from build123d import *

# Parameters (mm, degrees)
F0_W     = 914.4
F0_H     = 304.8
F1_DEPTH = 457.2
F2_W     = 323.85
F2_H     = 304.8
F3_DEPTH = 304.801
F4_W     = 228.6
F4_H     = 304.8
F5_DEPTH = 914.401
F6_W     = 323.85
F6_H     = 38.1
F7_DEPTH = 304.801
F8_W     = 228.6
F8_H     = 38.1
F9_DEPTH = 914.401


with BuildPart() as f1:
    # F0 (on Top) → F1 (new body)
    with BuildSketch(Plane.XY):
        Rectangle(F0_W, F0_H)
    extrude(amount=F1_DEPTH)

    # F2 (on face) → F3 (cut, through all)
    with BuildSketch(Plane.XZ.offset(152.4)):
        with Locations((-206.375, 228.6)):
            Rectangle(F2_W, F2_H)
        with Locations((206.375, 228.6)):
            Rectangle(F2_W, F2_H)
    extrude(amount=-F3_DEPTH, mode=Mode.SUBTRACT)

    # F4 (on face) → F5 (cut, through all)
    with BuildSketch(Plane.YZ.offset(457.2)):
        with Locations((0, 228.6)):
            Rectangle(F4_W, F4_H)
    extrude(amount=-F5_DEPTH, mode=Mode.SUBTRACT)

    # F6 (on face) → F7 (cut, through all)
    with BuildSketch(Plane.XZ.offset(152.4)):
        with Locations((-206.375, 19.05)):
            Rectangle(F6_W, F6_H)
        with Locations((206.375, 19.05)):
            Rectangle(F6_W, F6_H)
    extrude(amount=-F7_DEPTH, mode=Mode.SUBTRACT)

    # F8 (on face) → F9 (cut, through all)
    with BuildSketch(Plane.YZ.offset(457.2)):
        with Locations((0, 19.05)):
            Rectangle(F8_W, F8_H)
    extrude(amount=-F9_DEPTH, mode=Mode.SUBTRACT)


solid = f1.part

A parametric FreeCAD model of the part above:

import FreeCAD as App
import Part
import Sketcher
Q = App.Units.Quantity

doc = App.newDocument("Part")
body = doc.addObject("PartDesign::Body", "Body")

sketch1 = doc.addObject("Sketcher::SketchObject", "Sketch")
body.addObject(sketch1)
sketch1.AttachmentSupport = (doc.XY_Plane, [""])
sketch1.MapMode = "FlatFace"
sketch1.addGeometry([
    Part.LineSegment(App.Vector(-457, 152, 0), App.Vector(-457, -152, 0)),
    Part.LineSegment(App.Vector(-457, -152, 0), App.Vector(457, -152, 0)),
    Part.LineSegment(App.Vector(457, -152, 0), App.Vector(457, 152, 0)),
    Part.LineSegment(App.Vector(457, 152, 0), App.Vector(-457, 152, 0)),
], False)
sketch1.addConstraint([
    Sketcher.Constraint("Coincident", 0, 2, 1, 1),
    Sketcher.Constraint("Coincident", 1, 2, 2, 1),
    Sketcher.Constraint("Coincident", 2, 2, 3, 1),
    Sketcher.Constraint("Coincident", 3, 2, 0, 1),
    Sketcher.Constraint("Vertical", 0),
    Sketcher.Constraint("Horizontal", 1),
    Sketcher.Constraint("Vertical", 2),
    Sketcher.Constraint("Horizontal", 3),
    Sketcher.Constraint("Symmetric", 0, 2, 2, 2, -1, 1),
    Sketcher.Constraint("DistanceX", 1, 1, 1, 2, Q("36 in")),
    Sketcher.Constraint("DistanceY", 0, 2, 0, 1, Q("12 in")),
])
pad1 = doc.addObject("PartDesign::Pad", "Pad")
body.addObject(pad1)
pad1.Profile = sketch1
pad1.Length = Q("18 in")

sketch2 = doc.addObject("Sketcher::SketchObject", "Sketch001")
body.addObject(sketch2)
sketch2.AttachmentSupport = (doc.XZ_Plane, [""])
sketch2.MapMode = "FlatFace"
sketch2.AttachmentOffset = App.Placement(App.Vector(0, 0, 6 * 25.4), App.Rotation())
sketch2.addGeometry([
    Part.LineSegment(App.Vector(-368, 381, 0), App.Vector(-368, 76, 0)),
    Part.LineSegment(App.Vector(-368, 76, 0), App.Vector(-44, 76, 0)),
    Part.LineSegment(App.Vector(-44, 76, 0), App.Vector(-44, 381, 0)),
    Part.LineSegment(App.Vector(-44, 381, 0), App.Vector(-368, 381, 0)),
    Part.LineSegment(App.Vector(44, 381, 0), App.Vector(44, 76, 0)),
    Part.LineSegment(App.Vector(44, 76, 0), App.Vector(368, 76, 0)),
    Part.LineSegment(App.Vector(368, 76, 0), App.Vector(368, 381, 0)),
    Part.LineSegment(App.Vector(368, 381, 0), App.Vector(44, 381, 0)),
], False)
sketch2.addConstraint([
    Sketcher.Constraint("Coincident", 0, 2, 1, 1),
    Sketcher.Constraint("Coincident", 1, 2, 2, 1),
    Sketcher.Constraint("Coincident", 2, 2, 3, 1),
    Sketcher.Constraint("Coincident", 3, 2, 0, 1),
    Sketcher.Constraint("Coincident", 4, 2, 5, 1),
    Sketcher.Constraint("Coincident", 5, 2, 6, 1),
    Sketcher.Constraint("Coincident", 6, 2, 7, 1),
    Sketcher.Constraint("Coincident", 7, 2, 4, 1),
    Sketcher.Constraint("Vertical", 0),
    Sketcher.Constraint("Horizontal", 1),
    Sketcher.Constraint("Vertical", 2),
    Sketcher.Constraint("Horizontal", 3),
    Sketcher.Constraint("Vertical", 4),
    Sketcher.Constraint("Horizontal", 5),
    Sketcher.Constraint("Vertical", 6),
    Sketcher.Constraint("Horizontal", 7),
    Sketcher.Constraint("Symmetric", 1, 2, 4, 2, -2),
    Sketcher.Constraint("Symmetric", 3, 2, 6, 2, -2),
    Sketcher.Constraint("DistanceY", 0, 2, 0, 1, Q("12 in")),
    Sketcher.Constraint("DistanceY", -1, 1, 0, 2, Q("3 in")),
    Sketcher.Constraint("DistanceX", 0, 2, 5, 2, Q("29 in")),
    Sketcher.Constraint("DistanceX", 1, 1, 1, 2, Q("12.75 in")),
])
pocket1 = doc.addObject("PartDesign::Pocket", "Pocket")
body.addObject(pocket1)
pocket1.Profile = sketch2
pocket1.Type = "ThroughAll"

sketch3 = doc.addObject("Sketcher::SketchObject", "Sketch002")
body.addObject(sketch3)
sketch3.AttachmentSupport = (doc.YZ_Plane, [""])
sketch3.MapMode = "FlatFace"
sketch3.AttachmentOffset = App.Placement(App.Vector(0, 0, 18 * 25.4), App.Rotation())
sketch3.addGeometry([
    Part.LineSegment(App.Vector(-114, 381, 0), App.Vector(-114, 76, 0)),
    Part.LineSegment(App.Vector(-114, 76, 0), App.Vector(114, 76, 0)),
    Part.LineSegment(App.Vector(114, 76, 0), App.Vector(114, 381, 0)),
    Part.LineSegment(App.Vector(114, 381, 0), App.Vector(-114, 381, 0)),
], False)
sketch3.addConstraint([
    Sketcher.Constraint("Coincident", 0, 2, 1, 1),
    Sketcher.Constraint("Coincident", 1, 2, 2, 1),
    Sketcher.Constraint("Coincident", 2, 2, 3, 1),
    Sketcher.Constraint("Coincident", 3, 2, 0, 1),
    Sketcher.Constraint("Vertical", 0),
    Sketcher.Constraint("Horizontal", 1),
    Sketcher.Constraint("Vertical", 2),
    Sketcher.Constraint("Horizontal", 3),
    Sketcher.Constraint("DistanceX", 1, 1, 1, 2, Q("9 in")),
    Sketcher.Constraint("DistanceY", 0, 2, 0, 1, Q("12 in")),
    Sketcher.Constraint("DistanceY", -1, 1, 0, 2, Q("3 in")),
    Sketcher.Constraint("DistanceX", 0, 2, -1, 1, Q("4.5 in")),
])
pocket2 = doc.addObject("PartDesign::Pocket", "Pocket001")
body.addObject(pocket2)
pocket2.Profile = sketch3
pocket2.Type = "ThroughAll"

sketch4 = doc.addObject("Sketcher::SketchObject", "Sketch003")
body.addObject(sketch4)
sketch4.AttachmentSupport = (doc.XZ_Plane, [""])
sketch4.MapMode = "FlatFace"
sketch4.AttachmentOffset = App.Placement(App.Vector(0, 0, 6 * 25.4), App.Rotation())
sketch4.addGeometry([
    Part.LineSegment(App.Vector(-368, 38, 0), App.Vector(-368, 0, 0)),
    Part.LineSegment(App.Vector(-368, 0, 0), App.Vector(-44, 0, 0)),
    Part.LineSegment(App.Vector(-44, 0, 0), App.Vector(-44, 38, 0)),
    Part.LineSegment(App.Vector(-44, 38, 0), App.Vector(-368, 38, 0)),
    Part.LineSegment(App.Vector(44, 38, 0), App.Vector(44, 0, 0)),
    Part.LineSegment(App.Vector(44, 0, 0), App.Vector(368, 0, 0)),
    Part.LineSegment(App.Vector(368, 0, 0), App.Vector(368, 38, 0)),
    Part.LineSegment(App.Vector(368, 38, 0), App.Vector(44, 38, 0)),
], False)
sketch4.addConstraint([
    Sketcher.Constraint("Coincident", 0, 2, 1, 1),
    Sketcher.Constraint("Coincident", 1, 2, 2, 1),
    Sketcher.Constraint("Coincident", 2, 2, 3, 1),
    Sketcher.Constraint("Coincident", 3, 2, 0, 1),
    Sketcher.Constraint("Coincident", 4, 2, 5, 1),
    Sketcher.Constraint("Coincident", 5, 2, 6, 1),
    Sketcher.Constraint("Coincident", 6, 2, 7, 1),
    Sketcher.Constraint("Coincident", 7, 2, 4, 1),
    Sketcher.Constraint("Vertical", 0),
    Sketcher.Constraint("Horizontal", 1),
    Sketcher.Constraint("Vertical", 2),
    Sketcher.Constraint("Horizontal", 3),
    Sketcher.Constraint("Vertical", 4),
    Sketcher.Constraint("Horizontal", 5),
    Sketcher.Constraint("Vertical", 6),
    Sketcher.Constraint("Horizontal", 7),
    Sketcher.Constraint("Symmetric", 1, 2, 4, 2, -1, 1),
    Sketcher.Constraint("Symmetric", 0, 2, 5, 2, -2),
    Sketcher.Constraint("Horizontal", 3, 2, 6, 2),
    Sketcher.Constraint("DistanceY", 0, 2, 0, 1, Q("1.5 in")),
    Sketcher.Constraint("DistanceX", 0, 2, 5, 2, Q("29 in")),
    Sketcher.Constraint("DistanceX", 1, 1, 1, 2, Q("12.75 in")),
])
pocket3 = doc.addObject("PartDesign::Pocket", "Pocket002")
body.addObject(pocket3)
pocket3.Profile = sketch4
pocket3.Type = "ThroughAll"

sketch5 = doc.addObject("Sketcher::SketchObject", "Sketch004")
body.addObject(sketch5)
sketch5.AttachmentSupport = (doc.YZ_Plane, [""])
sketch5.MapMode = "FlatFace"
sketch5.AttachmentOffset = App.Placement(App.Vector(0, 0, 18 * 25.4), App.Rotation())
sketch5.addGeometry([
    Part.LineSegment(App.Vector(-114, 38, 0), App.Vector(-114, 0, 0)),
    Part.LineSegment(App.Vector(-114, 0, 0), App.Vector(114, 0, 0)),
    Part.LineSegment(App.Vector(114, 0, 0), App.Vector(114, 38, 0)),
    Part.LineSegment(App.Vector(114, 38, 0), App.Vector(-114, 38, 0)),
], False)
sketch5.addConstraint([
    Sketcher.Constraint("Coincident", 0, 2, 1, 1),
    Sketcher.Constraint("Coincident", 1, 2, 2, 1),
    Sketcher.Constraint("Coincident", 2, 2, 3, 1),
    Sketcher.Constraint("Coincident", 3, 2, 0, 1),
    Sketcher.Constraint("Vertical", 0),
    Sketcher.Constraint("Horizontal", 1),
    Sketcher.Constraint("Vertical", 2),
    Sketcher.Constraint("Horizontal", 3),
    Sketcher.Constraint("Symmetric", 0, 2, 1, 2, -1, 1),
    Sketcher.Constraint("DistanceX", 1, 1, 1, 2, Q("9 in")),
    Sketcher.Constraint("DistanceY", 0, 2, 0, 1, Q("1.5 in")),
])
pocket4 = doc.addObject("PartDesign::Pocket", "Pocket003")
body.addObject(pocket4)
pocket4.Profile = sketch5
pocket4.Type = "ThroughAll"

doc.recompute()
